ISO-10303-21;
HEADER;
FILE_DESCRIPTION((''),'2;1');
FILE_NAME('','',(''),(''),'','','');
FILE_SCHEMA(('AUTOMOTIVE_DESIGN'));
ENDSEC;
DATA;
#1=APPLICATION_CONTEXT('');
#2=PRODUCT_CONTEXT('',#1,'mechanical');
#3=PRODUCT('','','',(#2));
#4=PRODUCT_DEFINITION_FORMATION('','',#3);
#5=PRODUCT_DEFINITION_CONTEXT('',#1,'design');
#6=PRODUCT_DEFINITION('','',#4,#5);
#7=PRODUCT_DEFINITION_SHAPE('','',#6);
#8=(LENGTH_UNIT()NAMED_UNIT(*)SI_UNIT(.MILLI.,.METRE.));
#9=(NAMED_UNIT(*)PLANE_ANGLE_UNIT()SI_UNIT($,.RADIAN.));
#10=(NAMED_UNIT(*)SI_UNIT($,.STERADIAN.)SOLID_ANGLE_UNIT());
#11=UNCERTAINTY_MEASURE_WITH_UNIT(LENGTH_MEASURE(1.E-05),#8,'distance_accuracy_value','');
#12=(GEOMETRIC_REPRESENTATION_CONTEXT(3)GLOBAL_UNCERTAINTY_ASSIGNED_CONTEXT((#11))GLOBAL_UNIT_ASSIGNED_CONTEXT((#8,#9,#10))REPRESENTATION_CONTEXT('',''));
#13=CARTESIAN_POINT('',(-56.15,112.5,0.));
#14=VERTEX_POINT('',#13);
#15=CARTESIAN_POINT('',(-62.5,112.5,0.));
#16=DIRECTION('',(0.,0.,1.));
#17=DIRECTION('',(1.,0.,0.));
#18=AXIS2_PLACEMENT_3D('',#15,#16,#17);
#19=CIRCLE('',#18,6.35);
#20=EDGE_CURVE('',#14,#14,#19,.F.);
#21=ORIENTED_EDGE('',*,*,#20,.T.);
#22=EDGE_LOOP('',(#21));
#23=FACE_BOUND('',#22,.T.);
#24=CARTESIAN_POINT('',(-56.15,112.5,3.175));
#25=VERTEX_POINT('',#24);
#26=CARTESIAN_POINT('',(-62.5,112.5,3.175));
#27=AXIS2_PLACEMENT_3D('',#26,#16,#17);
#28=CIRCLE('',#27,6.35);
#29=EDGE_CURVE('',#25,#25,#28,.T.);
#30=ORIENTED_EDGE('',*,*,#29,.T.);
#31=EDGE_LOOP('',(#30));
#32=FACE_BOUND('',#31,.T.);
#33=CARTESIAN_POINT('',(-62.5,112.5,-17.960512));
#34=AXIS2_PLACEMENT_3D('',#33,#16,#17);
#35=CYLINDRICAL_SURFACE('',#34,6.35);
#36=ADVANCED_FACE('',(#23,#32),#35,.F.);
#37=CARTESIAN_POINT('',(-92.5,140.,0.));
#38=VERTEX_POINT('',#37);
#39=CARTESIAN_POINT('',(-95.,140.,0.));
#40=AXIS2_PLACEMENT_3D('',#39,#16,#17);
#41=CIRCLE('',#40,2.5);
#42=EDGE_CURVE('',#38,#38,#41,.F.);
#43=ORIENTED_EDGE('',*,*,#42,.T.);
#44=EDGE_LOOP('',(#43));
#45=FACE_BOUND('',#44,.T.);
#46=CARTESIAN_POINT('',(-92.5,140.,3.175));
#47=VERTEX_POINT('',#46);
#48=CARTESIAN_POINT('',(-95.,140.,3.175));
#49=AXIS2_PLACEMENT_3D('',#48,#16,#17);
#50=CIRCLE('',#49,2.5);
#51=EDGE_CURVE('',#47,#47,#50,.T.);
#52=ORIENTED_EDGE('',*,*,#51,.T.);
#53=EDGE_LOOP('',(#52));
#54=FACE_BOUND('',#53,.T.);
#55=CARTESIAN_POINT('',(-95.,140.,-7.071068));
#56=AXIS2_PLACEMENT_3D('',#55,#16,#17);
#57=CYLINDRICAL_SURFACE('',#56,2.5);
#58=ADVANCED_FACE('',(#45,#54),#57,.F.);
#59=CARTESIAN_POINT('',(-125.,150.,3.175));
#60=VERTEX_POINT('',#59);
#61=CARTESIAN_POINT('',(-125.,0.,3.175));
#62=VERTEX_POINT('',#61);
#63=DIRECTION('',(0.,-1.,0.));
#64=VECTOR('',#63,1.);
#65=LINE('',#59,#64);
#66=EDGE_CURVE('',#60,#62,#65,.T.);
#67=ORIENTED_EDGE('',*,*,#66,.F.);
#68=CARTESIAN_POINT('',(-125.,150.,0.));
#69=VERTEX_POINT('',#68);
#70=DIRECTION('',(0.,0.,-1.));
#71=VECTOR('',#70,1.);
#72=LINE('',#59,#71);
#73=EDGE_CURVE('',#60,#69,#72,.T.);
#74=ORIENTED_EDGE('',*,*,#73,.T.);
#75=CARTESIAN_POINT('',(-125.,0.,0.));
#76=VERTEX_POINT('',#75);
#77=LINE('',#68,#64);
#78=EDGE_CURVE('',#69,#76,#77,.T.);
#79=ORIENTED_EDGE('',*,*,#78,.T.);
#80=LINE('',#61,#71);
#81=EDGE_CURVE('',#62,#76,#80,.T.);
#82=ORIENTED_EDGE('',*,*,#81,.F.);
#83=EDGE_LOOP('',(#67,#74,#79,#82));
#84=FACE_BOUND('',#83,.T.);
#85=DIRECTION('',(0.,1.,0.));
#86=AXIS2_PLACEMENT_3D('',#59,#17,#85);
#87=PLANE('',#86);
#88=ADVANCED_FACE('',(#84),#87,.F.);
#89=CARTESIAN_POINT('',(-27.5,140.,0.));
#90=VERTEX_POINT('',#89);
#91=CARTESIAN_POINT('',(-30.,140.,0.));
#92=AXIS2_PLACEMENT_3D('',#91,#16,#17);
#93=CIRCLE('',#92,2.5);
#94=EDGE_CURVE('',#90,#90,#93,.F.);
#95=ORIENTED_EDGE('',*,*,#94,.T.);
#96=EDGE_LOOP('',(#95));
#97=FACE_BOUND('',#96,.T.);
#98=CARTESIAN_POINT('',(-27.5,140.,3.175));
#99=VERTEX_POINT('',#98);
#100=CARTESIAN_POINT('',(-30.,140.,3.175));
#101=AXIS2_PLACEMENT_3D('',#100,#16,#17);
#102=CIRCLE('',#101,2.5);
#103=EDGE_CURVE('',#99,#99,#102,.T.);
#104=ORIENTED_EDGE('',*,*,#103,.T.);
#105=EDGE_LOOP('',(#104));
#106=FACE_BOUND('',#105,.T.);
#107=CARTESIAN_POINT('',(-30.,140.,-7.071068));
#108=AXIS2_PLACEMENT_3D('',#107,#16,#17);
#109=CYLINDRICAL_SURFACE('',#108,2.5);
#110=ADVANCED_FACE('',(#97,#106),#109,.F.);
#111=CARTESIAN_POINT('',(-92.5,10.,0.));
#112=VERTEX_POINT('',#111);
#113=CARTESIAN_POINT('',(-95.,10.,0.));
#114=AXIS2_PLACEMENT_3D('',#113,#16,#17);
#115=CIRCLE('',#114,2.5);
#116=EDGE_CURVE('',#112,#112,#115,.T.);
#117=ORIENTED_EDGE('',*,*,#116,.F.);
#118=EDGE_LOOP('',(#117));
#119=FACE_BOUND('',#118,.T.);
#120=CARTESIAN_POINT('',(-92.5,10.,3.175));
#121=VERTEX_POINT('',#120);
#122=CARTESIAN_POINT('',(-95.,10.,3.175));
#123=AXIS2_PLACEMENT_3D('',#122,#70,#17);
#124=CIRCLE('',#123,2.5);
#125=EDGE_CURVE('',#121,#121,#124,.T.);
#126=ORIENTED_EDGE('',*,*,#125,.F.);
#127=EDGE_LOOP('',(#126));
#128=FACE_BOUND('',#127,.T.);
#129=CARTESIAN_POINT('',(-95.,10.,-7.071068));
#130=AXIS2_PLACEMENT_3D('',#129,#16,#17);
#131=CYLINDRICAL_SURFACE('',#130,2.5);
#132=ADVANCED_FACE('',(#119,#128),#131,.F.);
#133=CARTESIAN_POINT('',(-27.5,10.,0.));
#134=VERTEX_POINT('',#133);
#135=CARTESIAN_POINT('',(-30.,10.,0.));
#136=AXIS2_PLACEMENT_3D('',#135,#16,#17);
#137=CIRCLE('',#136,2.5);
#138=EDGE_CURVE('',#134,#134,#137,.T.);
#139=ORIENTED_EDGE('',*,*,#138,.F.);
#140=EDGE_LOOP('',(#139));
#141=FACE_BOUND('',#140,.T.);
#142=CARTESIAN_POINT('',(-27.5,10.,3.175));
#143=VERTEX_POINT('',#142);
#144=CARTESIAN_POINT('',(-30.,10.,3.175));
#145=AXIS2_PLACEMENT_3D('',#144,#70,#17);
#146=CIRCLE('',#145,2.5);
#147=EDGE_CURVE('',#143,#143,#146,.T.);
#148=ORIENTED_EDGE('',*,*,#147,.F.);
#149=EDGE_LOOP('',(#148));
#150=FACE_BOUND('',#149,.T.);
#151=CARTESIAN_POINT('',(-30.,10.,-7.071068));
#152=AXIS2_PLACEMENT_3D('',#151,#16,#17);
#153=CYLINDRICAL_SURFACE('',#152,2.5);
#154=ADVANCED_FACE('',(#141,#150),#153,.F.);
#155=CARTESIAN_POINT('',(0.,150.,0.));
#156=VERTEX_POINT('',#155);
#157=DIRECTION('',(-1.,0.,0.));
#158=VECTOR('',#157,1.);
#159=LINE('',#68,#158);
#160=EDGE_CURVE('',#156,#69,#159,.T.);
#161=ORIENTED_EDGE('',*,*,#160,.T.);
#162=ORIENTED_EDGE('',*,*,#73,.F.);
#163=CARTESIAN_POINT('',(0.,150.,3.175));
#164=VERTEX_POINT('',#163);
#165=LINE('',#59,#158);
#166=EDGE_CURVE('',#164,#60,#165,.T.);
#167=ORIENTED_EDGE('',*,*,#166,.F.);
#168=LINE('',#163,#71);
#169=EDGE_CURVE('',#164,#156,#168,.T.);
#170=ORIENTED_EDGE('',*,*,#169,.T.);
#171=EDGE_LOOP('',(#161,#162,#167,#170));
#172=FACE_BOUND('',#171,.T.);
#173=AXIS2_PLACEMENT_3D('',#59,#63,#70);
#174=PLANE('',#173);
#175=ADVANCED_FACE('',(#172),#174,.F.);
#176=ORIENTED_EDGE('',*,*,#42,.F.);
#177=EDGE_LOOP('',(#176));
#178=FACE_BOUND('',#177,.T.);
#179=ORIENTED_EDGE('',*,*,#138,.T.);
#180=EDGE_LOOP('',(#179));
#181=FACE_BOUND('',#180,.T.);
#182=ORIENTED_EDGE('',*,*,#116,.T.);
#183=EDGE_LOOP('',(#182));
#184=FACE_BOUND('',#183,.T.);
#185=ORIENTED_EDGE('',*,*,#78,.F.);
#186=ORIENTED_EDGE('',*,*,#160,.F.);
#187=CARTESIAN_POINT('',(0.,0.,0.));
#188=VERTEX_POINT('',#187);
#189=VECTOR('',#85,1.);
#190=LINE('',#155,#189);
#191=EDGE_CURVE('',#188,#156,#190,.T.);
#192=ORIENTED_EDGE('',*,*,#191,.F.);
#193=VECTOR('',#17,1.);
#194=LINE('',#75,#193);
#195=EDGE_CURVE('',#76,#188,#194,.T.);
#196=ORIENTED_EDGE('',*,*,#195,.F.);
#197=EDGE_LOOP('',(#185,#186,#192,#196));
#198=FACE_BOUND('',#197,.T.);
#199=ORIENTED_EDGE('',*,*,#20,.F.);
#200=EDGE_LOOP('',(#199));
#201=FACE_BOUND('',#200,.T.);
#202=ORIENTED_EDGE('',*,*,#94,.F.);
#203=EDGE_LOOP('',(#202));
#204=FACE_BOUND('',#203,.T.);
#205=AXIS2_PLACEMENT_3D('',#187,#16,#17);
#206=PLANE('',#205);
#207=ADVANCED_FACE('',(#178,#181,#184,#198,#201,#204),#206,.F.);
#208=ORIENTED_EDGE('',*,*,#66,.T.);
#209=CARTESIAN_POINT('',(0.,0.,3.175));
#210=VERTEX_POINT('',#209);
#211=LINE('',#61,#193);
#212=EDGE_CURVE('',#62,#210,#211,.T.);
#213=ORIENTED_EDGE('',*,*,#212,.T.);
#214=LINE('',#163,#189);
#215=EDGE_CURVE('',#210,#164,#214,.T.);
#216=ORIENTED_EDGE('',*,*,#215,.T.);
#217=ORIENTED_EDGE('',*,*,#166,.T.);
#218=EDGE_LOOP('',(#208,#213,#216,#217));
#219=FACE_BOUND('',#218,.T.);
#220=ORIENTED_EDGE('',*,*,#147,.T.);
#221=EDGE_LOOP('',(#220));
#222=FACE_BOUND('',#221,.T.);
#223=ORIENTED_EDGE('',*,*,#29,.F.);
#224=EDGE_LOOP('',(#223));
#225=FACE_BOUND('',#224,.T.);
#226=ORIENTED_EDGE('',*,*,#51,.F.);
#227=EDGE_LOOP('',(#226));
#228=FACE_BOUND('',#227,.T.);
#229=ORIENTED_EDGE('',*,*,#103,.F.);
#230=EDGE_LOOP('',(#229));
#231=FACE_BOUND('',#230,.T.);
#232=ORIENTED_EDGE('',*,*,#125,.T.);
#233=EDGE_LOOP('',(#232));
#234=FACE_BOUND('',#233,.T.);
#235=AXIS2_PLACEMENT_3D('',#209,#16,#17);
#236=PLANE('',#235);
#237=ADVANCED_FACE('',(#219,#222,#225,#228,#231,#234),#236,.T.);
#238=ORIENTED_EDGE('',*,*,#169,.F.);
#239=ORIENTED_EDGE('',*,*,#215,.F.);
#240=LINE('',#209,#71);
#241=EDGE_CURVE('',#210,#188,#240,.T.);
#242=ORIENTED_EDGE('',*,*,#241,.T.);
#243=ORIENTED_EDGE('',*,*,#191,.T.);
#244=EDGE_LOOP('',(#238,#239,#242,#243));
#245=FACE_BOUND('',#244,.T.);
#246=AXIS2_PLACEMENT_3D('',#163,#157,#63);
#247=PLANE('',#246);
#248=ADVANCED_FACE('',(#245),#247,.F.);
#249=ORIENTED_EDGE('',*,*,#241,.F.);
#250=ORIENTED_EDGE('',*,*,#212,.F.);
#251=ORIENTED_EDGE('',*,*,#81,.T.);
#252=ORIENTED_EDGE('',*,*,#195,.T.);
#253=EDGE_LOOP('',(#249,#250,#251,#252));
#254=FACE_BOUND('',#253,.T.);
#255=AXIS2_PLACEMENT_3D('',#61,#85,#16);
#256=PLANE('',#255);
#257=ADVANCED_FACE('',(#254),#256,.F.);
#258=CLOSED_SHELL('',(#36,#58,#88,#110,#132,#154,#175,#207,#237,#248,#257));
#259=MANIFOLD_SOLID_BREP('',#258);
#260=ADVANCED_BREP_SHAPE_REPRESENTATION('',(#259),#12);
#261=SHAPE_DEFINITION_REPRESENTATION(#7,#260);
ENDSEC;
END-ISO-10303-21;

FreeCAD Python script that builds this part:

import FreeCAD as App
import Part
import Sketcher
Q = App.Units.Quantity

doc = App.newDocument("Part")
body = doc.addObject("PartDesign::Body", "Body")

sketch1 = doc.addObject("Sketcher::SketchObject", "Sketch")
body.addObject(sketch1)
sketch1.AttachmentSupport = (doc.XY_Plane, [""])
sketch1.MapMode = "FlatFace"
sketch1.addGeometry([
    Part.LineSegment(App.Vector(-125, 150, 0), App.Vector(-125, 0, 0)),
    Part.LineSegment(App.Vector(-125, 0, 0), App.Vector(0, 0, 0)),
    Part.LineSegment(App.Vector(0, 0, 0), App.Vector(0, 150, 0)),
    Part.LineSegment(App.Vector(0, 150, 0), App.Vector(-125, 150, 0)),
], False)
sketch1.addConstraint([
    Sketcher.Constraint("Coincident", 0, 2, 1, 1),
    Sketcher.Constraint("Coincident", 1, 2, 2, 1),
    Sketcher.Constraint("Coincident", 2, 2, 3, 1),
    Sketcher.Constraint("Coincident", 3, 2, 0, 1),
    Sketcher.Constraint("Vertical", 0),
    Sketcher.Constraint("Horizontal", 1),
    Sketcher.Constraint("Vertical", 2),
    Sketcher.Constraint("Horizontal", 3),
    Sketcher.Constraint("Coincident", 1, 2, -1, 1),
    Sketcher.Constraint("DistanceX", 1, 1, 1, 2, Q("125 mm")),
    Sketcher.Constraint("DistanceY", 0, 2, 0, 1, Q("150 mm")),
])
pad1 = doc.addObject("PartDesign::Pad", "Pad")
body.addObject(pad1)
pad1.Profile = sketch1
pad1.Length = 3.175

sketch2 = doc.addObject("Sketcher::SketchObject", "Sketch001")
body.addObject(sketch2)
sketch2.AttachmentSupport = (doc.XY_Plane, [""])
sketch2.MapMode = "FlatFace"
sketch2.AttachmentOffset = App.Placement(App.Vector(0, 0, 3.175), App.Rotation())
sketch2.addGeometry([
    Part.Circle(App.Vector(-95, 140, 0), App.Vector(0, 0, 1), 2.5),
    Part.Circle(App.Vector(-30, 140, 0), App.Vector(0, 0, 1), 2.5),
], False)
sketch2.addConstraint([
    Sketcher.Constraint("Equal", 0, 1),
    Sketcher.Constraint("Horizontal", 0, 3, 1, 3),
    Sketcher.Constraint("Diameter", 0, Q("5 mm")),
    Sketcher.Constraint("DistanceX", 0, 3, -1, 1, Q("95 mm")),
    Sketcher.Constraint("DistanceY", -1, 1, 0, 3, Q("140 mm")),
    Sketcher.Constraint("DistanceX", 1, 3, -1, 1, Q("30 mm")),
])
pocket1 = doc.addObject("PartDesign::Pocket", "Pocket")
body.addObject(pocket1)
pocket1.Profile = sketch2
pocket1.Length = 3.175
doc.recompute()

datumplane = doc.addObject("PartDesign::Plane", "DatumPlane")
body.addObject(datumplane)
datumplane.AttachmentSupport = (doc.XZ_Plane, [""])
datumplane.MapMode = "FlatFace"
datumplane.AttachmentOffset = App.Placement(App.Vector(0, 0, -75), App.Rotation())
mirrored = doc.addObject("PartDesign::Mirrored", "Mirrored")
body.addObject(mirrored)
mirrored.Originals = [pocket1]
mirrored.MirrorPlane = (datumplane, [""])
body.Tip = mirrored

sketch3 = doc.addObject("Sketcher::SketchObject", "Sketch002")
body.addObject(sketch3)
sketch3.AttachmentSupport = (doc.XY_Plane, [""])
sketch3.MapMode = "FlatFace"
sketch3.AttachmentOffset = App.Placement(App.Vector(0, 0, 3.175), App.Rotation())
sketch3.addGeometry(Part.Circle(App.Vector(-62.5, 112.5, 0), App.Vector(0, 0, 1), 6.35), False)
sketch3.addConstraint([
    Sketcher.Constraint("Diameter", 0, Q("12.7 mm")),
    Sketcher.Constraint("DistanceX", 0, 3, -1, 1, Q("62.5 mm")),
    Sketcher.Constraint("DistanceY", -1, 1, 0, 3, Q("112.5 mm")),
])
pocket2 = doc.addObject("PartDesign::Pocket", "Pocket001")
body.addObject(pocket2)
pocket2.Profile = sketch3
pocket2.Length = 3.175

doc.recompute()
